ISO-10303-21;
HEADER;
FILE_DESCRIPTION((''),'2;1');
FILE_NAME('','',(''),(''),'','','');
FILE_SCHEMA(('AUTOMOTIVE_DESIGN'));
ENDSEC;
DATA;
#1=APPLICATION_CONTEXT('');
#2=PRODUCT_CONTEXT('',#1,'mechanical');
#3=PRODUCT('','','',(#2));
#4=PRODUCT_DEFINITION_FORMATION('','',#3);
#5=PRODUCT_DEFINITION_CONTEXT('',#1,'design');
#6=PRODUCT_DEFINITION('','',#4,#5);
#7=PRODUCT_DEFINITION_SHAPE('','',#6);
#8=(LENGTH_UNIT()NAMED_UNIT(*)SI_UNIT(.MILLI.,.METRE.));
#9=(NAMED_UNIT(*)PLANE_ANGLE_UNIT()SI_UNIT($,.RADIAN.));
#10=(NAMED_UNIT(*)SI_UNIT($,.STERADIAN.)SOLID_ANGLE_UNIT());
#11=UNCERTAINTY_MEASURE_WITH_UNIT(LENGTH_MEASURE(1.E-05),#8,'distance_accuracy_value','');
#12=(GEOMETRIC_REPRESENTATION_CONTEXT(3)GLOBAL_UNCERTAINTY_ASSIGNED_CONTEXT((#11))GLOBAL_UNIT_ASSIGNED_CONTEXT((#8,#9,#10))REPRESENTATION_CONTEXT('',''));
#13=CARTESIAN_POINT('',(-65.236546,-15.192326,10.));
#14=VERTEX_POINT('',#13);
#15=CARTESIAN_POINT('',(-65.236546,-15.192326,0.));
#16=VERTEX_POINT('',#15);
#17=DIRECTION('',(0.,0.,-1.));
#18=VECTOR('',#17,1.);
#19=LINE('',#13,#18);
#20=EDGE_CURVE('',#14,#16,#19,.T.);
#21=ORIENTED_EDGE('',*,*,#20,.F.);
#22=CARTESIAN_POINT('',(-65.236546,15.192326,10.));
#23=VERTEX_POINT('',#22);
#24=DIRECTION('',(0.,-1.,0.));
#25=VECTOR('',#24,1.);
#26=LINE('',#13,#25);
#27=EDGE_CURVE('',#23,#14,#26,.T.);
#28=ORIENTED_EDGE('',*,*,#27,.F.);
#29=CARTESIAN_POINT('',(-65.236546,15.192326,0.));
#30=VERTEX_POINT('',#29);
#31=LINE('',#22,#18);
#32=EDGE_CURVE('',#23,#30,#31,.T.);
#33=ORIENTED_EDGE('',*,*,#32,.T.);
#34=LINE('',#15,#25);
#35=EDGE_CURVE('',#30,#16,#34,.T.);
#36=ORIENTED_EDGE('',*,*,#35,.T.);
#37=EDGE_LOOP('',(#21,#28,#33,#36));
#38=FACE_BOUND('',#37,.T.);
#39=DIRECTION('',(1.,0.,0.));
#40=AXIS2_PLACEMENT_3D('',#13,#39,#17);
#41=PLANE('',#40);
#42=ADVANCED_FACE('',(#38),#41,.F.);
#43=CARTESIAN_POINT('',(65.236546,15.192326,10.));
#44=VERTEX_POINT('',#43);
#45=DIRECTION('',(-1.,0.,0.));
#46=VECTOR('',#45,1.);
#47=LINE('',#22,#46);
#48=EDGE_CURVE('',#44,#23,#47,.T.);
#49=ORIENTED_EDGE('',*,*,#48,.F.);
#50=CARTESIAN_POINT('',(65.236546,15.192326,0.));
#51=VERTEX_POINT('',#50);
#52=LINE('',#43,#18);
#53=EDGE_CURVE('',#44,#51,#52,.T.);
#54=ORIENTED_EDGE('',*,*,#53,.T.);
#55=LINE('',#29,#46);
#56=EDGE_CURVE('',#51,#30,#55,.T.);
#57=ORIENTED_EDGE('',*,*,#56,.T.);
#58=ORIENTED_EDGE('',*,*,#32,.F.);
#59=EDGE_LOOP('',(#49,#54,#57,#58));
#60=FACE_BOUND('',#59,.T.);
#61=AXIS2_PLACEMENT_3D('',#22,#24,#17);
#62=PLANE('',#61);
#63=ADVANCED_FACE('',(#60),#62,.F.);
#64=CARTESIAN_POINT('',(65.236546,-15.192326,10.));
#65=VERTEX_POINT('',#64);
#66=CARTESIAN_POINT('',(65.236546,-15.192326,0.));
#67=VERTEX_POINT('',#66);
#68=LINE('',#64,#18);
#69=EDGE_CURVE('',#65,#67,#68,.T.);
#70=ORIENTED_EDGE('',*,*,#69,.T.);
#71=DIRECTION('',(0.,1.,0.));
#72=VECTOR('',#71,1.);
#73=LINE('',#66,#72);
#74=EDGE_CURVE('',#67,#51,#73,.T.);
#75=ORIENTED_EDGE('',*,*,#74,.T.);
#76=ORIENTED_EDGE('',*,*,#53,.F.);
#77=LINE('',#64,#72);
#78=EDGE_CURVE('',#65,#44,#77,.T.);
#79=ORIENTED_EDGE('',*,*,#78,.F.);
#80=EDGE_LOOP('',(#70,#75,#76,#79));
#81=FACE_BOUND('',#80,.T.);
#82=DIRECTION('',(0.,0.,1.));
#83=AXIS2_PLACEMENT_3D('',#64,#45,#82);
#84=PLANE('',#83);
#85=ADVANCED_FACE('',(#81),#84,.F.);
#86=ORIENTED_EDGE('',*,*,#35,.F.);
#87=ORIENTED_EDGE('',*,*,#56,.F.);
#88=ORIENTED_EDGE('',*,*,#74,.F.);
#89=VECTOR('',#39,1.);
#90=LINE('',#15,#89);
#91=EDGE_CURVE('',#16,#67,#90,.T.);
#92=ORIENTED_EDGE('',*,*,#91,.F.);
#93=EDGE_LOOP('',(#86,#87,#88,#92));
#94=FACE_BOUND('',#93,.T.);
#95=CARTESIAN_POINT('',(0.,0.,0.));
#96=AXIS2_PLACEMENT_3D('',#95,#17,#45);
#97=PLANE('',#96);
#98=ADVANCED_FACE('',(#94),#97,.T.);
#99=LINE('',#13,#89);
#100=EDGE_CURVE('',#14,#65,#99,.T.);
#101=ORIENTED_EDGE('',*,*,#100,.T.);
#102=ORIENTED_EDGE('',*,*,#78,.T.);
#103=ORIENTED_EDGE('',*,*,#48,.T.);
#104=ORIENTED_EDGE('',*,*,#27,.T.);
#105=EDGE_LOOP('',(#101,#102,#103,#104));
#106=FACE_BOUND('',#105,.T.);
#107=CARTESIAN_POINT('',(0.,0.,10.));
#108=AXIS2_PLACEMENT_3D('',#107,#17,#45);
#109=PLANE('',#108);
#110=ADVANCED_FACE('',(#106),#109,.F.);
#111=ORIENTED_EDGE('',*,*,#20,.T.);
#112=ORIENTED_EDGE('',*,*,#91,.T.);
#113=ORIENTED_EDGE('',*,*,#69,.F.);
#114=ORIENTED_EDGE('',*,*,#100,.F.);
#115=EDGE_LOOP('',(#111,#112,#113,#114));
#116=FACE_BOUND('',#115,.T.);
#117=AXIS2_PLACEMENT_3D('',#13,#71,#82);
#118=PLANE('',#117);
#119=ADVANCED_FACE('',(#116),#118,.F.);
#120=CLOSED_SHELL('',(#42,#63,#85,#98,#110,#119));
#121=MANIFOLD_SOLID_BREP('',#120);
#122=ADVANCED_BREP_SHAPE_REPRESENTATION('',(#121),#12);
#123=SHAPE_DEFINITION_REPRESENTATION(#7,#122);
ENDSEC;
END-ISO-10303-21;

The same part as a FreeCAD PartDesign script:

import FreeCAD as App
import Part
import Sketcher
from FreeCAD import Vector


def add_polygon(sketch, points):
    """Adds a closed chain of lines whose ends are joined by coincident constraints."""
    first, n = sketch.GeometryCount, len(points)
    for a, b in zip(points, points[1:] + points[:1]):
        sketch.addGeometry(Part.LineSegment(App.Vector(*a, 0), App.Vector(*b, 0)), False)
    for i in range(n):
        sketch.addConstraint(Sketcher.Constraint("Coincident", first + i, 2, first + (i + 1) % n, 1))

doc = App.newDocument("Part")
body = doc.addObject("PartDesign::Body", "Body")

# Sketch on XY plane
sketch1 = body.newObject("Sketcher::SketchObject", "Sketch")
sketch1.AttachmentSupport = (doc.getObject("XY_Plane"), [""])
sketch1.MapMode = "FlatFace"
add_polygon(sketch1, [(-65, 15), (-65, -15), (65, -15), (65, 15)])  # lines 0-3
sketch1.addConstraint([
    Sketcher.Constraint("Vertical", 0),
    Sketcher.Constraint("Horizontal", 1),
    Sketcher.Constraint("Vertical", 2),
    Sketcher.Constraint("Horizontal", 3),
    Sketcher.Constraint("Symmetric", 0, 2, 2, 2, -1, 1),
    Sketcher.Constraint("DistanceX", 1, 1, 1, 2, 130.473093),
    Sketcher.Constraint("DistanceY", 0, 2, 0, 1, 30.384652),
])
pad1 = body.newObject("PartDesign::Pad", "Pad")
pad1.Profile = sketch1
pad1.Length = 10

doc.recompute()
